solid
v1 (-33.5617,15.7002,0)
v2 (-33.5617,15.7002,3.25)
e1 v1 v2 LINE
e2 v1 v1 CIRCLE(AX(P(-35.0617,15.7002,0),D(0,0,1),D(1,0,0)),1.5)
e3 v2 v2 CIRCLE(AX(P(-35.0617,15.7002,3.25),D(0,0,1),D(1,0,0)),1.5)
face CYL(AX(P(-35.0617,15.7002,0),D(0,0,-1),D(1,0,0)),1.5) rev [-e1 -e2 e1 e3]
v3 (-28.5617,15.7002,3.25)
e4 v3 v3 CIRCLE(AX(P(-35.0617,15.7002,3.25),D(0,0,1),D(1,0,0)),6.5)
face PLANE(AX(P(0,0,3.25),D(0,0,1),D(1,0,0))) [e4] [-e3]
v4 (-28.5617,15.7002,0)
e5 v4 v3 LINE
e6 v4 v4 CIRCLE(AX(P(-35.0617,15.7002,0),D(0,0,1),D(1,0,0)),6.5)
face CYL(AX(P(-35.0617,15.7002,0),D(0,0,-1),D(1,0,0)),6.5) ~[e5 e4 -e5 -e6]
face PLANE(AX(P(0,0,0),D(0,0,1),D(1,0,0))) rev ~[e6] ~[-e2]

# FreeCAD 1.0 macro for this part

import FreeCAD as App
import Part
import Sketcher
from FreeCAD import Vector

doc = App.newDocument("Part")
body = doc.addObject("PartDesign::Body", "Body")

# Sketch on XY plane
sketch1 = body.newObject("Sketcher::SketchObject", "Sketch")
sketch1.AttachmentSupport = (doc.getObject("XY_Plane"), [""])
sketch1.MapMode = "FlatFace"
sketch1.addGeometry([
    Part.Circle(Vector(-35.1, 15.7, 0), Vector(0, 0, 1), 6.5),
    Part.Circle(Vector(-35.1, 15.7, 0), Vector(0, 0, 1), 1.5),
], False)
sketch1.addConstraint([
    Sketcher.Constraint("Coincident", 1, 3, 0, 3),
    Sketcher.Constraint("Diameter", 0, 13.0),
    Sketcher.Constraint("Diameter", 1, 3.0),
    Sketcher.Constraint("DistanceX", 0, 3, -1, 1, 35.0617),
    Sketcher.Constraint("DistanceY", -1, 1, 0, 3, 15.7002),
])
pad1 = body.newObject("PartDesign::Pad", "Pad")
pad1.Profile = sketch1
pad1.Length = 3.25

doc.recompute()
